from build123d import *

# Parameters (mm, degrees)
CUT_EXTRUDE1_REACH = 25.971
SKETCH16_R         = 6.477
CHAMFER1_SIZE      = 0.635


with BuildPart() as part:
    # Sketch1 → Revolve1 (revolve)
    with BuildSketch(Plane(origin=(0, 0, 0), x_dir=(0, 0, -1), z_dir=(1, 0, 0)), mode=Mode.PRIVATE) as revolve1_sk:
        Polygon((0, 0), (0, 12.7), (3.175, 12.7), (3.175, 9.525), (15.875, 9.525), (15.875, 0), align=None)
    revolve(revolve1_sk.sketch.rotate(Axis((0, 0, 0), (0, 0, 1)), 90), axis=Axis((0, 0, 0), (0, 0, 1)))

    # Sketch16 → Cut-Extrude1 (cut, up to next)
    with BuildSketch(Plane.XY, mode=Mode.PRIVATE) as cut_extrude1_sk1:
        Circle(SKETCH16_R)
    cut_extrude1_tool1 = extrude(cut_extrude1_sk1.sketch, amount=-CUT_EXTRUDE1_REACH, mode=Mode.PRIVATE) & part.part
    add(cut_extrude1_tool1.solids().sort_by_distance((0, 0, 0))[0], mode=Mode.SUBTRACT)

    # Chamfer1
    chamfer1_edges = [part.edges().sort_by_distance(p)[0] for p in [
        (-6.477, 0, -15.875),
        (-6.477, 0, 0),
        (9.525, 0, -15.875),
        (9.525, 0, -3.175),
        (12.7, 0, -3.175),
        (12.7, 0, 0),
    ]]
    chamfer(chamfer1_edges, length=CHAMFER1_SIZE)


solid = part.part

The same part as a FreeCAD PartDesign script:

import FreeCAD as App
import Part
import Sketcher
from FreeCAD import Vector
Q = App.Units.Quantity


def edges_at(feature, points):
    """Names of the edges that pass closest to the given points."""
    edges = feature.Shape.Edges
    near = lambda p: min(range(len(edges)), key=lambda i: edges[i].distToShape(Part.Vertex(*p))[0])
    return sorted({f"Edge{near(p) + 1}" for p in points})


def add_polygon(sketch, points):
    """Adds a closed chain of lines whose ends are joined by coincident constraints."""
    first, n = sketch.GeometryCount, len(points)
    for a, b in zip(points, points[1:] + points[:1]):
        sketch.addGeometry(Part.LineSegment(App.Vector(*a, 0), App.Vector(*b, 0)), False)
    for i in range(n):
        sketch.addConstraint(Sketcher.Constraint("Coincident", first + i, 2, first + (i + 1) % n, 1))

doc = App.newDocument("Part")
body = doc.addObject("PartDesign::Body", "Body")

sketch1 = body.newObject("Sketcher::SketchObject", "Sketch")
sketch1.AttachmentSupport = (doc.getObject("YZ_Plane"), [""])
sketch1.MapMode = "FlatFace"
add_polygon(sketch1, [(12.7, 0), (0, 0), (0, -15.9), (9.5, -15.9), (9.5, -3.2), (12.7, -3.2)])
sketch1.addConstraint([
    Sketcher.Constraint("Horizontal", 0),
    Sketcher.Constraint("Vertical", 1),
    Sketcher.Constraint("Horizontal", 2),
    Sketcher.Constraint("Vertical", 3),
    Sketcher.Constraint("Horizontal", 4),
    Sketcher.Constraint("Vertical", 5),
    Sketcher.Constraint("Coincident", 0, 2, -1, 1),
    Sketcher.Constraint("Equal", 0, 3),
    Sketcher.Constraint("Equal", 4, 5),
    Sketcher.Constraint("DistanceX", 0, 2, 0, 1, Q("0.5 in")),
    Sketcher.Constraint("DistanceX", 2, 1, 2, 2, Q("0.375 in")),
])
revolution = body.newObject("PartDesign::Revolution", "Revolution")
revolution.Profile = sketch1
revolution.ReferenceAxis = (sketch1, ["V_Axis"])
revolution.Angle = 360

sketch2 = body.newObject("Sketcher::SketchObject", "Sketch001")
sketch2.AttachmentSupport = (doc.getObject("XY_Plane"), [""])
sketch2.MapMode = "FlatFace"
sketch2.addGeometry(Part.Circle(Vector(0, 0, 0), Vector(0, 0, 1), 6), False)
sketch2.addConstraint([
    Sketcher.Constraint("Coincident", 0, 3, -1, 1),
    Sketcher.Constraint("Diameter", 0, Q("0.51 in")),
])
pocket1 = body.newObject("PartDesign::Pocket", "Pocket")
pocket1.Profile = sketch2
pocket1.Type = "UpToFirst"
doc.recompute()

chamfer = body.newObject("PartDesign::Chamfer", "Chamfer")
chamfer.Base = (pocket1, edges_at(pocket1, [
    (-6.477, 0, -15.875),
    (-6.477, 0, 0),
    (9.525, 0, -15.875),
    (9.525, 0, -3.175),
    (12.7, 0, -3.175),
    (12.7, 0, 0),
]))
chamfer.Size = Q("0.025 in")

doc.recompute()
